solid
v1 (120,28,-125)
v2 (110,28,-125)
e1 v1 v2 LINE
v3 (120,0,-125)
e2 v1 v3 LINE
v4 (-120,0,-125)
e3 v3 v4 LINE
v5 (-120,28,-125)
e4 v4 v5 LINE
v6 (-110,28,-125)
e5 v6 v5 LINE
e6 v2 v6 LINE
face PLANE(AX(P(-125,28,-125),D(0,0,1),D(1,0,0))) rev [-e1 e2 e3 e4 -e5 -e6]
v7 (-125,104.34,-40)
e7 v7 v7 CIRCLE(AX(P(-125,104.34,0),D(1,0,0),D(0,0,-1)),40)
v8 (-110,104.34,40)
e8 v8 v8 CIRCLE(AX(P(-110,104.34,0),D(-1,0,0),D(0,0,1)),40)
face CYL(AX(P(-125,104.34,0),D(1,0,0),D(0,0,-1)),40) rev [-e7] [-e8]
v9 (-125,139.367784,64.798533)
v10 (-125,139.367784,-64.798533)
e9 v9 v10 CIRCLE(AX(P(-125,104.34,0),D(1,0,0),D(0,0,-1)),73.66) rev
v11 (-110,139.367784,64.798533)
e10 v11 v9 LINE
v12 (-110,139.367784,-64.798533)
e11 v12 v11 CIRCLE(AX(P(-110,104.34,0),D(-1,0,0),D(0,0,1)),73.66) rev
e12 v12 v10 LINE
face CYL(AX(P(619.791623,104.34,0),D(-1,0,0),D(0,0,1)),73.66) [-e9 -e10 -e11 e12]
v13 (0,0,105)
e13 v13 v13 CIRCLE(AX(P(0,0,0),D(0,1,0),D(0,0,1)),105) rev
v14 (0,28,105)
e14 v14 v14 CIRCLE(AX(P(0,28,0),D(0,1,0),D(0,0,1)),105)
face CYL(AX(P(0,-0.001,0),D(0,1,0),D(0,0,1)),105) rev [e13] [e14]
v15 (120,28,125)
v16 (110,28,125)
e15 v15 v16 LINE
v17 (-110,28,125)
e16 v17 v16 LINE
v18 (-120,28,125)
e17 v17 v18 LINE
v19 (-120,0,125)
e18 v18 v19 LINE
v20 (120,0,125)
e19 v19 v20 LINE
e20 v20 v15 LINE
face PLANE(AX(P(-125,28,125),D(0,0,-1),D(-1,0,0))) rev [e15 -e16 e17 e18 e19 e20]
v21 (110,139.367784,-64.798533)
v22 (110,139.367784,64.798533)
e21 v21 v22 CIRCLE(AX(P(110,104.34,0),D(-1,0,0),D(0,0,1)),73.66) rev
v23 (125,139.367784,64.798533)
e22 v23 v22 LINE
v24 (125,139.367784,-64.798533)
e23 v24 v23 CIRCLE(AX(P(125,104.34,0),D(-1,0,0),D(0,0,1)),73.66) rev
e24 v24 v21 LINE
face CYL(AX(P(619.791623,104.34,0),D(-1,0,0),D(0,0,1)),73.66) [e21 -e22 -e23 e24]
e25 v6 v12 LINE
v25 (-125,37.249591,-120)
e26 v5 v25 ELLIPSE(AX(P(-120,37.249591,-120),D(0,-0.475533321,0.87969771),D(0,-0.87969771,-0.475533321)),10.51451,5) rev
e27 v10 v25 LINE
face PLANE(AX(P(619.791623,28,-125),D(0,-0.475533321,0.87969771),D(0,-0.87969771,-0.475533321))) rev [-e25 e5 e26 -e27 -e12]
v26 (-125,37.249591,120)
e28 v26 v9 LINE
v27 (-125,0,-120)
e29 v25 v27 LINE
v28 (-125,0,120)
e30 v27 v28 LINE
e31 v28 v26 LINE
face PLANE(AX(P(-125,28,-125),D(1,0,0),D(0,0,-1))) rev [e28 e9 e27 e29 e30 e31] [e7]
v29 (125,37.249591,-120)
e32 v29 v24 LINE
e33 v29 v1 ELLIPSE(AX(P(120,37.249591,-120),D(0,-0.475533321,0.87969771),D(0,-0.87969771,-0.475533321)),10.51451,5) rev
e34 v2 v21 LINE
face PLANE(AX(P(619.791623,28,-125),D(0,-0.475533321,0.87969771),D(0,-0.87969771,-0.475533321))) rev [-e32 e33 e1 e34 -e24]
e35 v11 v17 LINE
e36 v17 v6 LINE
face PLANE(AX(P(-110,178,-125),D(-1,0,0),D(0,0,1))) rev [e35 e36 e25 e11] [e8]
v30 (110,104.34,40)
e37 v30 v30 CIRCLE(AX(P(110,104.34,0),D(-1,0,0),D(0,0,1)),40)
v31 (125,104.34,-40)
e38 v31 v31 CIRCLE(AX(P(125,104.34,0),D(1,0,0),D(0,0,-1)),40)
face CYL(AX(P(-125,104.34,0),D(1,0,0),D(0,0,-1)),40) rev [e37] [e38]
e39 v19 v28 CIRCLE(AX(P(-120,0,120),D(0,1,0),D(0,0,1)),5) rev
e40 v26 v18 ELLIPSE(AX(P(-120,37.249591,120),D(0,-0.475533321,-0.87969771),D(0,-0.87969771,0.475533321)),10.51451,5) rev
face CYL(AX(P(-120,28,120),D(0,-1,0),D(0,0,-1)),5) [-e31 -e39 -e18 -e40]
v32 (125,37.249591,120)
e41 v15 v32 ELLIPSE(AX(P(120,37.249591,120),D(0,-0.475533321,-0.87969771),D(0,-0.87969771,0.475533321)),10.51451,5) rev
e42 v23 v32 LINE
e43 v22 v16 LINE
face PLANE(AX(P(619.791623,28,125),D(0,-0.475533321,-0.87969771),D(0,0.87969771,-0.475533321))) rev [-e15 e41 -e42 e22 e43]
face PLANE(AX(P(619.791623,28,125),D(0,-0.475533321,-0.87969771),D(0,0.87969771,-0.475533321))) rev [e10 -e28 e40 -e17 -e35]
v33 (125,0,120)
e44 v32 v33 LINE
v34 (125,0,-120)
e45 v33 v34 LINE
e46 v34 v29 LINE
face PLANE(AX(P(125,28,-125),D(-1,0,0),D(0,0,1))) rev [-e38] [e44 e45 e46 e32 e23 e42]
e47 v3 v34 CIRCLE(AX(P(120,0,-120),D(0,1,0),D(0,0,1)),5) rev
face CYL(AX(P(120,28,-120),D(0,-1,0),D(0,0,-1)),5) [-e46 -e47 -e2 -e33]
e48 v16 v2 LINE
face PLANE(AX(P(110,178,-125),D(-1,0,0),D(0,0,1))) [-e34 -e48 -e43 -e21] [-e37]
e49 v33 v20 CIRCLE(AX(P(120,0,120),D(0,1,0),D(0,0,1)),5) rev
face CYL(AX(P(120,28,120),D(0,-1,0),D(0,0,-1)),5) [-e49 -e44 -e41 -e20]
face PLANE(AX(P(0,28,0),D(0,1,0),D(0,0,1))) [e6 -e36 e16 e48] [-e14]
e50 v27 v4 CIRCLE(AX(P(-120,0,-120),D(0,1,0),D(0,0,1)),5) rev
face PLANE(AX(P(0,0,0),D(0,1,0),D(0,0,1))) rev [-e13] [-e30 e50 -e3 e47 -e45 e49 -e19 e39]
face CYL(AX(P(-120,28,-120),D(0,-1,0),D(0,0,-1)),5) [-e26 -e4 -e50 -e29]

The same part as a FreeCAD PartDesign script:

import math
import FreeCAD as App
import Part
import Sketcher
from FreeCAD import Vector
Q = App.Units.Quantity


def edges_at(feature, points):
    """Names of the edges that pass closest to the given points."""
    edges = feature.Shape.Edges
    near = lambda p: min(range(len(edges)), key=lambda i: edges[i].distToShape(Part.Vertex(*p))[0])
    return sorted({f"Edge{near(p) + 1}" for p in points})


def add_polygon(sketch, points):
    """Adds a closed chain of lines whose ends are joined by coincident constraints."""
    first, n = sketch.GeometryCount, len(points)
    for a, b in zip(points, points[1:] + points[:1]):
        sketch.addGeometry(Part.LineSegment(App.Vector(*a, 0), App.Vector(*b, 0)), False)
    for i in range(n):
        sketch.addConstraint(Sketcher.Constraint("Coincident", first + i, 2, first + (i + 1) % n, 1))

doc = App.newDocument("Part")
body = doc.addObject("PartDesign::Body", "Body")

# Sketch on XZ plane
sketch1 = doc.addObject("Sketcher::SketchObject", "Sketch")
body.addObject(sketch1)
sketch1.AttachmentSupport = (doc.XZ_Plane, [""])
sketch1.MapMode = "FlatFace"
add_polygon(sketch1, [(-125, -125), (-125, 125), (125, 125), (125, -125)])  # lines 0-3
sketch1.addConstraint(Sketcher.Constraint("Vertical", 0))
sketch1.addConstraint(Sketcher.Constraint("Horizontal", 1))
sketch1.addConstraint(Sketcher.Constraint("Vertical", 2))
sketch1.addConstraint(Sketcher.Constraint("Horizontal", 3))
sketch1.addConstraint(Sketcher.Constraint("Symmetric", 0, 2, 2, 2, -1, 1))
sketch1.addConstraint(Sketcher.Constraint("Equal", 3, 0))
sketch1.addConstraint(Sketcher.Constraint("DistanceX", 1, 1, 1, 2, Q("250 mm")))
pad1 = doc.addObject("PartDesign::Pad", "Pad")
body.addObject(pad1)
pad1.Profile = sketch1
pad1.Length = 28
pad1.Reversed = True

# Sketch on XZ plane
sketch2 = doc.addObject("Sketcher::SketchObject", "Sketch001")
body.addObject(sketch2)
sketch2.AttachmentSupport = (doc.XZ_Plane, [""])
sketch2.MapMode = "FlatFace"
sketch2.AttachmentOffset = App.Placement(Vector(0, 0, -28), App.Rotation())
sketch2.addGeometry(Part.Circle(Vector(0, 0, 0), Vector(0, 0, 1), 105), False)
sketch2.addConstraint(Sketcher.Constraint("Coincident", 0, 3, -1, 1))
sketch2.addConstraint(Sketcher.Constraint("Diameter", 0, Q("210 mm")))
pocket1 = doc.addObject("PartDesign::Pocket", "Pocket")
body.addObject(pocket1)
pocket1.Profile = sketch2
pocket1.Type = "UpToFirst"
pocket1.Reversed = True

# Sketch on XZ plane
sketch3 = doc.addObject("Sketcher::SketchObject", "Sketch002")
body.addObject(sketch3)
sketch3.AttachmentSupport = (doc.XZ_Plane, [""])
sketch3.MapMode = "FlatFace"
sketch3.AttachmentOffset = App.Placement(Vector(0, 0, -28), App.Rotation())
add_polygon(sketch3, [(-125, -125), (-125, 125), (-110, 125), (-110, -125)])  # lines 0-3
sketch3.addConstraint(Sketcher.Constraint("Vertical", 0))
sketch3.addConstraint(Sketcher.Constraint("Horizontal", 1))
sketch3.addConstraint(Sketcher.Constraint("Vertical", 2))
sketch3.addConstraint(Sketcher.Constraint("Horizontal", 3))
sketch3.addConstraint(Sketcher.Constraint("DistanceX", 1, 1, 1, 2, Q("15 mm")))
sketch3.addConstraint(Sketcher.Constraint("DistanceY", 0, 1, 0, 2, Q("250 mm")))
sketch3.addConstraint(Sketcher.Constraint("DistanceX", 0, 2, -1, 1, Q("125 mm")))
sketch3.addConstraint(Sketcher.Constraint("DistanceY", -1, 1, 0, 2, Q("125 mm")))
pad2 = doc.addObject("PartDesign::Pad", "Pad001")
body.addObject(pad2)
pad2.Profile = sketch3
pad2.Length = 150
pad2.Reversed = True
doc.recompute()

mirrored = doc.addObject("PartDesign::Mirrored", "Mirrored")
body.addObject(mirrored)
mirrored.Originals = [pad2]
mirrored.MirrorPlane = (doc.YZ_Plane, [""])
body.Tip = mirrored

# Sketch on YZ plane
sketch4 = doc.addObject("Sketcher::SketchObject", "Sketch003")
body.addObject(sketch4)
sketch4.AttachmentSupport = (doc.YZ_Plane, [""])
sketch4.MapMode = "FlatFace"
sketch4.AttachmentOffset = App.Placement(Vector(0, 0, 125), App.Rotation())
sketch4.addGeometry(Part.Circle(Vector(104.34, 0, 0), Vector(0, 0, 1), 40), False)
sketch4.addConstraint(Sketcher.Constraint("PointOnObject", 0, 3, -1))
sketch4.addConstraint(Sketcher.Constraint("Diameter", 0, Q("80 mm")))
sketch4.addConstraint(Sketcher.Constraint("DistanceX", -1, 1, 0, 3, Q("104.34 mm")))
pocket2 = doc.addObject("PartDesign::Pocket", "Pocket001")
body.addObject(pocket2)
pocket2.Profile = sketch4
pocket2.Type = "ThroughAll"

# Sketch on YZ plane
sketch5 = doc.addObject("Sketcher::SketchObject", "Sketch004")
body.addObject(sketch5)
sketch5.AttachmentSupport = (doc.YZ_Plane, [""])
sketch5.MapMode = "FlatFace"
sketch5.AttachmentOffset = App.Placement(Vector(0, 0, 125), App.Rotation())
sketch5.addGeometry(Part.LineSegment(Vector(139.367784, -64.798533, 0), Vector(-493.74448, -407.036525, 0)), False)
sketch5.addGeometry(Part.LineSegment(Vector(-493.74448, -407.036525, 0), Vector(692.445899, -407.036525, 0)), False)
sketch5.addGeometry(Part.LineSegment(Vector(692.445899, -407.036525, 0), Vector(692.445899, 407.036525, 0)), False)
sketch5.addGeometry(Part.LineSegment(Vector(692.445899, 407.036525, 0), Vector(-493.74448, 407.036525, 0)), False)
sketch5.addGeometry(Part.LineSegment(Vector(-493.74448, 407.036525, 0), Vector(139.367784, 64.798533, 0)), False)
sketch5.addGeometry(Part.ArcOfCircle(Part.Circle(Vector(104.34, 0, 0), Vector(0, 0, 1), 73.66), math.radians(-61.60592), math.radians(61.60592)), False)
sketch5.addConstraint(Sketcher.Constraint("Coincident", 0, 2, 1, 1))
sketch5.addConstraint(Sketcher.Constraint("Coincident", 1, 2, 2, 1))
sketch5.addConstraint(Sketcher.Constraint("Coincident", 2, 2, 3, 1))
sketch5.addConstraint(Sketcher.Constraint("Coincident", 3, 2, 4, 1))
sketch5.addConstraint(Sketcher.Constraint("Tangent", 4, 2, 5, 2))
sketch5.addConstraint(Sketcher.Constraint("Tangent", 5, 1, 0, 1))
sketch5.addConstraint(Sketcher.Constraint("Horizontal", 1))
sketch5.addConstraint(Sketcher.Constraint("Vertical", 2))
sketch5.addConstraint(Sketcher.Constraint("Horizontal", 3))
sketch5.addConstraint(Sketcher.Constraint("Symmetric", 0, 2, 3, 2, -1))
sketch5.addConstraint(Sketcher.Constraint("PointOnObject", 5, 3, -1))
sketch5.addConstraint(Sketcher.Constraint("Radius", 5, Q("73.66 mm")))
sketch5.addConstraint(Sketcher.Constraint("DistanceX", -1, 1, 5, 3, Q("104.34 mm")))
sketch5.addConstraint(Sketcher.Constraint("DistanceX", 1, 1, 1, 2, Q("1186.190379 mm")))
sketch5.addConstraint(Sketcher.Constraint("DistanceY", 2, 1, 2, 2, Q("814.07305 mm")))
sketch5.addConstraint(Sketcher.Constraint("DistanceX", -1, 1, 1, 2, Q("692.445899 mm")))
pocket3 = doc.addObject("PartDesign::Pocket", "Pocket002")
body.addObject(pocket3)
pocket3.Profile = sketch5
pocket3.Type = "ThroughAll"
pocket3.Midplane = True
doc.recompute()

fillet = doc.addObject("PartDesign::Fillet", "Fillet")
body.addObject(fillet)
fillet.Base = (pocket3, edges_at(pocket3, [
    (125, 14, 125),
    (-125, 14, 125),
    (-125, 14, -125),
    (125, 14, -125),
]))
fillet.Radius = 5

doc.recompute()
